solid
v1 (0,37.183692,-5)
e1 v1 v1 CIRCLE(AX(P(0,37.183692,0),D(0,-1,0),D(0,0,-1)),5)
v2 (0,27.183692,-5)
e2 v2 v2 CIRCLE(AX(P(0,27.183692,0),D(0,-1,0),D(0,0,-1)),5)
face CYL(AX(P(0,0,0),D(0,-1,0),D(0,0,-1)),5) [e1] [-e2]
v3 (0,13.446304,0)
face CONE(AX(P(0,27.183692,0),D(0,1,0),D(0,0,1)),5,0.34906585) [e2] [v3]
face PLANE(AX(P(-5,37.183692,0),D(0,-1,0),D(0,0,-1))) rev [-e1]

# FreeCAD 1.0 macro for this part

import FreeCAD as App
import Part
import Sketcher

V = App.Vector
Q = App.Units.Quantity

doc = App.newDocument("Part")
params = doc.addObject("Spreadsheet::Sheet", "Params")
for row, (alias, value) in enumerate([
    ("sketch1_width", "5 mm"),
    ("sketch1_height", "10 mm"),
    ("revolution_angle", "360 deg"),
], start=1):
    params.set(f"A{row}", alias)
    params.set(f"B{row}", "=" + value)
    params.setAlias(f"B{row}", alias)

body = doc.addObject("PartDesign::Body", "Body")

sketch1 = body.newObject("Sketcher::SketchObject", "Sketch")
sketch1.AttachmentSupport = (doc.getObject("XY_Plane"), [""])
sketch1.MapMode = "FlatFace"
sketch1.addGeometry([
    Part.LineSegment(V(-5, 37, 0), V(-5, 27, 0)),
    Part.LineSegment(V(-5, 27, 0), V(0, 13, 0)),
    Part.LineSegment(V(0, 13, 0), V(0, 37, 0)),
    Part.LineSegment(V(0, 37, 0), V(-5, 37, 0)),
], False)
sketch1.addConstraint([
    Sketcher.Constraint("Coincident", 0, 2, 1, 1),
    Sketcher.Constraint("Coincident", 1, 2, 2, 1),
    Sketcher.Constraint("Coincident", 2, 2, 3, 1),
    Sketcher.Constraint("Coincident", 3, 2, 0, 1),
    Sketcher.Constraint("Vertical", 0),
    Sketcher.Constraint("Vertical", 2),
    Sketcher.Constraint("Horizontal", 3),
    Sketcher.Constraint("PointOnObject", 1, 2, -2),
    Sketcher.Constraint("DistanceX", 3, 2, 3, 1, Q("5 mm")),
    Sketcher.Constraint("DistanceY", 0, 2, 0, 1, Q("10 mm")),
    Sketcher.Constraint("Angle", 1, Q("-70 deg")),
    Sketcher.Constraint("DistanceY", -1, 1, 0, 2, Q("27.183692 mm")),
])
sketch1.setExpression("Constraints[8]", "Params.sketch1_width")
sketch1.setExpression("Constraints[9]", "Params.sketch1_height")
revolution = body.newObject("PartDesign::Revolution", "Revolution")
revolution.Profile = sketch1
revolution.ReferenceAxis = (sketch1, ["V_Axis"])
revolution.setExpression("Angle", "Params.revolution_angle")

doc.recompute()
